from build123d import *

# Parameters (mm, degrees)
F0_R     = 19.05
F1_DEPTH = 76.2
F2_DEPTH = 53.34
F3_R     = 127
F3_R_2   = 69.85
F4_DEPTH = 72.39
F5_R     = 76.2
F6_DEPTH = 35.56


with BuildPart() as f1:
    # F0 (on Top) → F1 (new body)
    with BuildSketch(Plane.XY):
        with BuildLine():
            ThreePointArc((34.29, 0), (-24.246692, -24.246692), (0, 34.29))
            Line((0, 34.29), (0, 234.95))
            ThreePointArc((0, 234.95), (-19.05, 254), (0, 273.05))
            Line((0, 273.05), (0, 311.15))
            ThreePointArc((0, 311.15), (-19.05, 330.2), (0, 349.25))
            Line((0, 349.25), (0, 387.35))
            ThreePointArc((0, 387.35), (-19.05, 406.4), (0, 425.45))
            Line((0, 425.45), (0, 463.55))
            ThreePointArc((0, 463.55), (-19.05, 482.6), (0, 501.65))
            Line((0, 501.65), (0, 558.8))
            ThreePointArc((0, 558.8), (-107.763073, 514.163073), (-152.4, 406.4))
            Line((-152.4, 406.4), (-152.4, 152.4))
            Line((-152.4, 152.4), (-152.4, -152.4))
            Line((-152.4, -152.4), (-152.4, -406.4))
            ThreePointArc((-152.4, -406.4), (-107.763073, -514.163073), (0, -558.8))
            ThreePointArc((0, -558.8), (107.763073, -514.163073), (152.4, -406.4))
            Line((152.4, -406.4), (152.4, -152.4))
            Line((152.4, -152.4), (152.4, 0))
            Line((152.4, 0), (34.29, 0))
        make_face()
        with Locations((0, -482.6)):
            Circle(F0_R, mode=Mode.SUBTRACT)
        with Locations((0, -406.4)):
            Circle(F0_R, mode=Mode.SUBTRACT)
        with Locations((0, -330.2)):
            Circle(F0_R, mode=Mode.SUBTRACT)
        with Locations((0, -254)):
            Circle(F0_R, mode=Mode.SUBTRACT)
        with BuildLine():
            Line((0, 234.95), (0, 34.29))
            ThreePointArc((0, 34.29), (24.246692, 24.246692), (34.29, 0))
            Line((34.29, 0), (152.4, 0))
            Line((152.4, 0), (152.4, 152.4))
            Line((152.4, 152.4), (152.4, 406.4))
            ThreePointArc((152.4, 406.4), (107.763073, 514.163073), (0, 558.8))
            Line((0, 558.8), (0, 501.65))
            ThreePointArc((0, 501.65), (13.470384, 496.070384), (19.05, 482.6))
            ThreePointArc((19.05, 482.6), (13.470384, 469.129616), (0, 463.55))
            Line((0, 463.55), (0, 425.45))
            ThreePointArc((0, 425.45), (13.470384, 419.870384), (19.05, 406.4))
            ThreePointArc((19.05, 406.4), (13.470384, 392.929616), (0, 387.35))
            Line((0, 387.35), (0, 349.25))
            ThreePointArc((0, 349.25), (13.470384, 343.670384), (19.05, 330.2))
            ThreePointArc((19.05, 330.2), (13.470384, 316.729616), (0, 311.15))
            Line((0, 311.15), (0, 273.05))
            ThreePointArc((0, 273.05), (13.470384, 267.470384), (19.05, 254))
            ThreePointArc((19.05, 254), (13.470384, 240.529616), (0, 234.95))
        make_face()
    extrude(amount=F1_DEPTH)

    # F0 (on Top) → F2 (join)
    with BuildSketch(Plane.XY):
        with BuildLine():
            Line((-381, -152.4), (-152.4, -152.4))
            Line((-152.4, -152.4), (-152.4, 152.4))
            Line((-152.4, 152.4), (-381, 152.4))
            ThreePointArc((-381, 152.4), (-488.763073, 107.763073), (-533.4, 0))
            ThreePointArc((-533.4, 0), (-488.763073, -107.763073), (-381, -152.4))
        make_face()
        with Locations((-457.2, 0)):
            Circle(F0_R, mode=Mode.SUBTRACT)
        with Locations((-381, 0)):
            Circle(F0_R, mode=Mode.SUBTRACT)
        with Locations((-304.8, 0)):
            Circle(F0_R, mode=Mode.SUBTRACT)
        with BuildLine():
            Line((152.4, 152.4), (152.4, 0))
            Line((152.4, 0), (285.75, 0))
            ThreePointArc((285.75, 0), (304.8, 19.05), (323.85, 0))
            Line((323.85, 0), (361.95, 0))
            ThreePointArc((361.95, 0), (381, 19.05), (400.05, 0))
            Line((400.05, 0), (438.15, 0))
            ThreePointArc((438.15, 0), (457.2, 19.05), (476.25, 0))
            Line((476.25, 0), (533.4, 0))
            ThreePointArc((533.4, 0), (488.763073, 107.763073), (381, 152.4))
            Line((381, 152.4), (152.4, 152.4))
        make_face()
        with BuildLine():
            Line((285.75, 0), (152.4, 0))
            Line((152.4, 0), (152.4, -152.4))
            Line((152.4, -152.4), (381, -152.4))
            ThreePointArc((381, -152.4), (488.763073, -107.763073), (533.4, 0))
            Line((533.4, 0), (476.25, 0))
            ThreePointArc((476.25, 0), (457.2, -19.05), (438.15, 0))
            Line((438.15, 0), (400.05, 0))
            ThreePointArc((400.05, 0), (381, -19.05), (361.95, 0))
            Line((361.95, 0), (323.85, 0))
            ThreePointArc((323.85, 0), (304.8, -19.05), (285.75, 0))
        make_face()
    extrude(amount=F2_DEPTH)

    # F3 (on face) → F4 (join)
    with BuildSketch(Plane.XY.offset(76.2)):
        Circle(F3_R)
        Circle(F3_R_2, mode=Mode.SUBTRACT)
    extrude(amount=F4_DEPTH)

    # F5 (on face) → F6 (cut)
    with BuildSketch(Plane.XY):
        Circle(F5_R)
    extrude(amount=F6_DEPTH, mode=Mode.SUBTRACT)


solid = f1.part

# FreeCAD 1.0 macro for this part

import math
import FreeCAD as App
import Part
import Sketcher
Q = App.Units.Quantity

doc = App.newDocument("Part")
params = doc.addObject("Spreadsheet::Sheet", "Params")
for row, (alias, value) in enumerate([
    ("sketch1_radius", "6.0000001 in"),
    ("sketch1_diameter", "1.5 in"),
    ("sketch1_height", "32 in"),
    ("sketch1_radius2", "1.35 in"),
    ("pad1_length", "3 in"),
    ("sketch2_radius", "6.0000001 in"),
    ("sketch2_diameter", "1.5 in"),
    ("sketch2_width", "9 in"),
    ("pad2_length", "2.1 in"),
    ("sketch3_diameter", "10 in"),
    ("sketch3_diameter2", "5.5 in"),
    ("pad3_length", "2.85 in"),
    ("sketch4_diameter", "6 in"),
    ("pocket1_length", "1.4 in"),
], start=1):
    params.set(f"A{row}", alias)
    params.set(f"B{row}", "=" + value)
    params.setAlias(f"B{row}", alias)

body = doc.addObject("PartDesign::Body", "Body")

# Sketch on XY plane
sketch1 = doc.addObject("Sketcher::SketchObject", "Sketch")
body.addObject(sketch1)
sketch1.AttachmentSupport = (doc.XY_Plane, [""])
sketch1.MapMode = "FlatFace"
sketch1.addGeometry([
    Part.LineSegment(App.Vector(152, -406, 0), App.Vector(152, 406, 0)),  # 0
    Part.ArcOfCircle(Part.Circle(App.Vector(0, 406, 0), App.Vector(0, 0, 1), 152), math.radians(0), math.radians(90)),  # 1
    Part.ArcOfCircle(Part.Circle(App.Vector(0, 406, 0), App.Vector(0, 0, 1), 152), math.radians(90), math.radians(180)),  # 2
    Part.LineSegment(App.Vector(-152, 406, 0), App.Vector(-152, -406, 0)),  # 3
    Part.ArcOfCircle(Part.Circle(App.Vector(0, -406, 0), App.Vector(0, 0, 1), 152), math.radians(-180), math.radians(-90)),  # 4
    Part.ArcOfCircle(Part.Circle(App.Vector(0, -406, 0), App.Vector(0, 0, 1), 152), math.radians(-90), math.radians(0)),  # 5
    Part.ArcOfCircle(Part.Circle(App.Vector(0, 0, 0), App.Vector(0, 0, 1), 34), math.radians(90), math.radians(360)),  # 6
    Part.ArcOfCircle(Part.Circle(App.Vector(0, 0, 0), App.Vector(0, 0, 1), 34), math.radians(0), math.radians(90)),  # 7
    Part.ArcOfCircle(Part.Circle(App.Vector(0, 254, 0), App.Vector(0, 0, 1), 19), math.radians(90), math.radians(270)),  # 8
    Part.ArcOfCircle(Part.Circle(App.Vector(0, 254, 0), App.Vector(0, 0, 1), 19), math.radians(0), math.radians(90)),  # 9
    Part.ArcOfCircle(Part.Circle(App.Vector(0, 254, 0), App.Vector(0, 0, 1), 19), math.radians(-90), math.radians(0)),  # 10
    Part.ArcOfCircle(Part.Circle(App.Vector(0, 330, 0), App.Vector(0, 0, 1), 19), math.radians(90), math.radians(270)),  # 11
    Part.ArcOfCircle(Part.Circle(App.Vector(0, 330, 0), App.Vector(0, 0, 1), 19), math.radians(0), math.radians(90)),  # 12
    Part.ArcOfCircle(Part.Circle(App.Vector(0, 330, 0), App.Vector(0, 0, 1), 19), math.radians(-90), math.radians(0)),  # 13
    Part.ArcOfCircle(Part.Circle(App.Vector(0, 406, 0), App.Vector(0, 0, 1), 19), math.radians(90), math.radians(270)),  # 14
    Part.ArcOfCircle(Part.Circle(App.Vector(0, 406, 0), App.Vector(0, 0, 1), 19), math.radians(0), math.radians(90)),  # 15
    Part.ArcOfCircle(Part.Circle(App.Vector(0, 406, 0), App.Vector(0, 0, 1), 19), math.radians(-90), math.radians(0)),  # 16
    Part.ArcOfCircle(Part.Circle(App.Vector(0, 483, 0), App.Vector(0, 0, 1), 19), math.radians(90), math.radians(270)),  # 17
    Part.ArcOfCircle(Part.Circle(App.Vector(0, 483, 0), App.Vector(0, 0, 1), 19), math.radians(0), math.radians(90)),  # 18
    Part.ArcOfCircle(Part.Circle(App.Vector(0, 483, 0), App.Vector(0, 0, 1), 19), math.radians(-90), math.radians(0)),  # 19
    Part.Circle(App.Vector(0, -483, 0), App.Vector(0, 0, 1), 19),  # 20
    Part.Circle(App.Vector(0, -406, 0), App.Vector(0, 0, 1), 19),  # 21
    Part.Circle(App.Vector(0, -330, 0), App.Vector(0, 0, 1), 19),  # 22
    Part.Circle(App.Vector(0, -254, 0), App.Vector(0, 0, 1), 19),  # 23
], False)
sketch1.addConstraint([
    Sketcher.Constraint("Tangent", 0, 2, 1, 1),
    Sketcher.Constraint("Tangent", 1, 2, 2, 1),
    Sketcher.Constraint("Tangent", 2, 2, 3, 1),
    Sketcher.Constraint("Tangent", 3, 2, 4, 1),
    Sketcher.Constraint("Tangent", 4, 2, 5, 1),
    Sketcher.Constraint("Tangent", 5, 2, 0, 1),
    Sketcher.Constraint("Tangent", 6, 1, 7, 2),
    Sketcher.Constraint("Coincident", 7, 1, 6, 2),
    Sketcher.Constraint("Tangent", 8, 1, 9, 2),
    Sketcher.Constraint("Tangent", 9, 1, 10, 2),
    Sketcher.Constraint("Tangent", 10, 1, 8, 2),
    Sketcher.Constraint("Tangent", 11, 1, 12, 2),
    Sketcher.Constraint("Tangent", 12, 1, 13, 2),
    Sketcher.Constraint("Tangent", 13, 1, 11, 2),
    Sketcher.Constraint("Tangent", 14, 1, 15, 2),
    Sketcher.Constraint("Tangent", 15, 1, 16, 2),
    Sketcher.Constraint("Tangent", 16, 1, 14, 2),
    Sketcher.Constraint("Tangent", 17, 1, 18, 2),
    Sketcher.Constraint("Tangent", 18, 1, 19, 2),
    Sketcher.Constraint("Tangent", 19, 1, 17, 2),
    Sketcher.Constraint("Vertical", 0),
    Sketcher.Constraint("Vertical", 3),
    Sketcher.Constraint("Coincident", 6, 3, -1, 1),
    Sketcher.Constraint("Coincident", 14, 3, 1, 3),
    Sketcher.Constraint("Coincident", 21, 3, 4, 3),
    Sketcher.Constraint("Equal", 1, 2),
    Sketcher.Constraint("Equal", 2, 4),
    Sketcher.Constraint("Equal", 10, 11),
    Sketcher.Constraint("Equal", 13, 14),
    Sketcher.Constraint("Equal", 16, 17),
    Sketcher.Constraint("Equal", 19, 20),
    Sketcher.Constraint("Equal", 20, 21),
    Sketcher.Constraint("Equal", 21, 22),
    Sketcher.Constraint("Equal", 22, 23),
    Sketcher.Constraint("Symmetric", 1, 3, 4, 3, -1, 1),
    Sketcher.Constraint("Symmetric", 17, 3, 20, 3, -1, 1),
    Sketcher.Constraint("Symmetric", 11, 3, 22, 3, -1, 1),
    Sketcher.Constraint("Symmetric", 8, 3, 23, 3, -1, 1),
    Sketcher.Constraint("PointOnObject", 8, 3, -2),
    Sketcher.Constraint("PointOnObject", 11, 3, -2),
    Sketcher.Constraint("PointOnObject", 17, 3, -2),
    Sketcher.Constraint("PointOnObject", 1, 2, -2),
    Sketcher.Constraint("PointOnObject", 4, 2, -2),
    Sketcher.Constraint("PointOnObject", 6, 1, -2),
    Sketcher.Constraint("PointOnObject", 7, 1, -1),
    Sketcher.Constraint("PointOnObject", 8, 1, -2),
    Sketcher.Constraint("PointOnObject", 10, 1, -2),
    Sketcher.Constraint("PointOnObject", 11, 1, -2),
    Sketcher.Constraint("PointOnObject", 13, 1, -2),
    Sketcher.Constraint("PointOnObject", 14, 1, -2),
    Sketcher.Constraint("PointOnObject", 16, 1, -2),
    Sketcher.Constraint("PointOnObject", 17, 1, -2),
    Sketcher.Constraint("PointOnObject", 19, 1, -2),
    Sketcher.Constraint("Horizontal", 10, 3, 9, 1),
    Sketcher.Constraint("Horizontal", 13, 3, 12, 1),
    Sketcher.Constraint("Horizontal", 2, 2, 15, 1),
    Sketcher.Constraint("Horizontal", 19, 3, 18, 1),
    Sketcher.Constraint("Radius", 1, Q("6.0000001 in")),
    Sketcher.Constraint("Diameter", 20, Q("1.5 in")),
    Sketcher.Constraint("DistanceY", 0, 1, 0, 2, Q("32 in")),
    Sketcher.Constraint("Radius", 6, Q("1.35 in")),
    Sketcher.Constraint("DistanceY", -1, 1, 8, 3, Q("10 in")),
    Sketcher.Constraint("DistanceY", -1, 1, 11, 3, Q("13 in")),
    Sketcher.Constraint("DistanceY", -1, 1, 17, 3, Q("19 in")),
])
sketch1.setExpression("Constraints[57]", "Params.sketch1_radius")
sketch1.setExpression("Constraints[58]", "Params.sketch1_diameter")
sketch1.setExpression("Constraints[59]", "Params.sketch1_height")
sketch1.setExpression("Constraints[60]", "Params.sketch1_radius2")
pad1 = doc.addObject("PartDesign::Pad", "Pad")
body.addObject(pad1)
pad1.Profile = sketch1
pad1.setExpression("Length", "Params.pad1_length")

# Sketch on XY plane
sketch2 = doc.addObject("Sketcher::SketchObject", "Sketch001")
body.addObject(sketch2)
sketch2.AttachmentSupport = (doc.XY_Plane, [""])
sketch2.MapMode = "FlatFace"
sketch2.addGeometry([
    Part.LineSegment(App.Vector(-381, -152, 0), App.Vector(-152, -152, 0)),  # 0
    Part.LineSegment(App.Vector(-152, -152, 0), App.Vector(-152, 152, 0)),  # 1
    Part.LineSegment(App.Vector(-152, 152, 0), App.Vector(-381, 152, 0)),  # 2
    Part.ArcOfCircle(Part.Circle(App.Vector(-381, 0, 0), App.Vector(0, 0, 1), 152), math.radians(90), math.radians(180)),  # 3
    Part.ArcOfCircle(Part.Circle(App.Vector(-381, 0, 0), App.Vector(0, 0, 1), 152), math.radians(-180), math.radians(-90)),  # 4
    Part.Circle(App.Vector(-457, 0, 0), App.Vector(0, 0, 1), 19),  # 5
    Part.Circle(App.Vector(-381, 0, 0), App.Vector(0, 0, 1), 19),  # 6
    Part.Circle(App.Vector(-305, 0, 0), App.Vector(0, 0, 1), 19),  # 7
    Part.LineSegment(App.Vector(152, 152, 0), App.Vector(152, -152, 0)),  # 8
    Part.LineSegment(App.Vector(152, -152, 0), App.Vector(381, -152, 0)),  # 9
    Part.ArcOfCircle(Part.Circle(App.Vector(381, 0, 0), App.Vector(0, 0, 1), 152), math.radians(-90), math.radians(0)),  # 10
    Part.ArcOfCircle(Part.Circle(App.Vector(381, 0, 0), App.Vector(0, 0, 1), 152), math.radians(0), math.radians(90)),  # 11
    Part.LineSegment(App.Vector(381, 152, 0), App.Vector(152, 152, 0)),  # 12
    Part.Circle(App.Vector(305, 0, 0), App.Vector(0, 0, 1), 19),  # 13
    Part.Circle(App.Vector(381, 0, 0), App.Vector(0, 0, 1), 19),  # 14
    Part.Circle(App.Vector(457, 0, 0), App.Vector(0, 0, 1), 19),  # 15
], False)
sketch2.addConstraint([
    Sketcher.Constraint("Coincident", 0, 2, 1, 1),
    Sketcher.Constraint("Coincident", 1, 2, 2, 1),
    Sketcher.Constraint("Tangent", 2, 2, 3, 1),
    Sketcher.Constraint("Tangent", 3, 2, 4, 1),
    Sketcher.Constraint("Tangent", 4, 2, 0, 1),
    Sketcher.Constraint("Coincident", 8, 2, 9, 1),
    Sketcher.Constraint("Tangent", 9, 2, 10, 1),
    Sketcher.Constraint("Tangent", 10, 2, 11, 1),
    Sketcher.Constraint("Tangent", 11, 2, 12, 1),
    Sketcher.Constraint("Coincident", 12, 2, 8, 1),
    Sketcher.Constraint("Horizontal", 0),
    Sketcher.Constraint("Vertical", 1),
    Sketcher.Constraint("Horizontal", 2),
    Sketcher.Constraint("Vertical", 8),
    Sketcher.Constraint("Horizontal", 9),
    Sketcher.Constraint("Horizontal", 12),
    Sketcher.Constraint("Coincident", 6, 3, 3, 3),
    Sketcher.Constraint("Coincident", 14, 3, 10, 3),
    Sketcher.Constraint("Equal", 3, 4),
    Sketcher.Constraint("Equal", 5, 6),
    Sketcher.Constraint("Equal", 6, 7),
    Sketcher.Constraint("Equal", 4, 10),
    Sketcher.Constraint("Equal", 10, 11),
    Sketcher.Constraint("Equal", 7, 13),
    Sketcher.Constraint("Equal", 13, 14),
    Sketcher.Constraint("Equal", 14, 15),
    Sketcher.Constraint("Symmetric", 3, 3, 10, 3, -1, 1),
    Sketcher.Constraint("Symmetric", 7, 3, 13, 3, -1, 1),
    Sketcher.Constraint("Symmetric", 5, 3, 15, 3, -1, 1),
    Sketcher.Constraint("Symmetric", 0, 2, 8, 2, -2),
    Sketcher.Constraint("PointOnObject", 5, 3, -1),
    Sketcher.Constraint("PointOnObject", 7, 3, -1),
    Sketcher.Constraint("PointOnObject", 3, 2, -1),
    Sketcher.Constraint("PointOnObject", 10, 2, -1),
    Sketcher.Constraint("Radius", 3, Q("6.0000001 in")),
    Sketcher.Constraint("Diameter", 5, Q("1.5 in")),
    Sketcher.Constraint("DistanceX", 0, 1, 0, 2, Q("9 in")),
    Sketcher.Constraint("DistanceX", 3, 3, -1, 1, Q("14.9999999 in")),
    Sketcher.Constraint("DistanceX", 5, 3, -1, 1, Q("18 in")),
    Sketcher.Constraint("DistanceX", 7, 3, -1, 1, Q("12 in")),
])
sketch2.setExpression("Constraints[34]", "Params.sketch2_radius")
sketch2.setExpression("Constraints[35]", "Params.sketch2_diameter")
sketch2.setExpression("Constraints[36]", "Params.sketch2_width")
pad2 = doc.addObject("PartDesign::Pad", "Pad001")
body.addObject(pad2)
pad2.Profile = sketch2
pad2.setExpression("Length", "Params.pad2_length")

# Sketch on XY plane
sketch3 = doc.addObject("Sketcher::SketchObject", "Sketch002")
body.addObject(sketch3)
sketch3.AttachmentSupport = (doc.XY_Plane, [""])
sketch3.MapMode = "FlatFace"
sketch3.AttachmentOffset = App.Placement(App.Vector(0, 0, 3 * 25.4), App.Rotation())
sketch3.addGeometry([
    Part.Circle(App.Vector(0, 0, 0), App.Vector(0, 0, 1), 127),
    Part.Circle(App.Vector(0, 0, 0), App.Vector(0, 0, 1), 70),
], False)
sketch3.addConstraint([
    Sketcher.Constraint("Coincident", 0, 3, -1, 1),
    Sketcher.Constraint("Coincident", 1, 3, -1, 1),
    Sketcher.Constraint("Diameter", 0, Q("10 in")),
    Sketcher.Constraint("Diameter", 1, Q("5.5 in")),
])
sketch3.setExpression("Constraints[2]", "Params.sketch3_diameter")
sketch3.setExpression("Constraints[3]", "Params.sketch3_diameter2")
pad3 = doc.addObject("PartDesign::Pad", "Pad002")
body.addObject(pad3)
pad3.Profile = sketch3
pad3.setExpression("Length", "Params.pad3_length")

# Sketch on XY plane
sketch4 = doc.addObject("Sketcher::SketchObject", "Sketch003")
body.addObject(sketch4)
sketch4.AttachmentSupport = (doc.XY_Plane, [""])
sketch4.MapMode = "FlatFace"
sketch4.addGeometry(Part.Circle(App.Vector(0, 0, 0), App.Vector(0, 0, 1), 76), False)
sketch4.addConstraint([
    Sketcher.Constraint("Coincident", 0, 3, -1, 1),
    Sketcher.Constraint("Diameter", 0, Q("6 in")),
])
sketch4.setExpression("Constraints[1]", "Params.sketch4_diameter")
pocket1 = doc.addObject("PartDesign::Pocket", "Pocket")
body.addObject(pocket1)
pocket1.Profile = sketch4
pocket1.setExpression("Length", "Params.pocket1_length")
pocket1.Reversed = True

doc.recompute()
